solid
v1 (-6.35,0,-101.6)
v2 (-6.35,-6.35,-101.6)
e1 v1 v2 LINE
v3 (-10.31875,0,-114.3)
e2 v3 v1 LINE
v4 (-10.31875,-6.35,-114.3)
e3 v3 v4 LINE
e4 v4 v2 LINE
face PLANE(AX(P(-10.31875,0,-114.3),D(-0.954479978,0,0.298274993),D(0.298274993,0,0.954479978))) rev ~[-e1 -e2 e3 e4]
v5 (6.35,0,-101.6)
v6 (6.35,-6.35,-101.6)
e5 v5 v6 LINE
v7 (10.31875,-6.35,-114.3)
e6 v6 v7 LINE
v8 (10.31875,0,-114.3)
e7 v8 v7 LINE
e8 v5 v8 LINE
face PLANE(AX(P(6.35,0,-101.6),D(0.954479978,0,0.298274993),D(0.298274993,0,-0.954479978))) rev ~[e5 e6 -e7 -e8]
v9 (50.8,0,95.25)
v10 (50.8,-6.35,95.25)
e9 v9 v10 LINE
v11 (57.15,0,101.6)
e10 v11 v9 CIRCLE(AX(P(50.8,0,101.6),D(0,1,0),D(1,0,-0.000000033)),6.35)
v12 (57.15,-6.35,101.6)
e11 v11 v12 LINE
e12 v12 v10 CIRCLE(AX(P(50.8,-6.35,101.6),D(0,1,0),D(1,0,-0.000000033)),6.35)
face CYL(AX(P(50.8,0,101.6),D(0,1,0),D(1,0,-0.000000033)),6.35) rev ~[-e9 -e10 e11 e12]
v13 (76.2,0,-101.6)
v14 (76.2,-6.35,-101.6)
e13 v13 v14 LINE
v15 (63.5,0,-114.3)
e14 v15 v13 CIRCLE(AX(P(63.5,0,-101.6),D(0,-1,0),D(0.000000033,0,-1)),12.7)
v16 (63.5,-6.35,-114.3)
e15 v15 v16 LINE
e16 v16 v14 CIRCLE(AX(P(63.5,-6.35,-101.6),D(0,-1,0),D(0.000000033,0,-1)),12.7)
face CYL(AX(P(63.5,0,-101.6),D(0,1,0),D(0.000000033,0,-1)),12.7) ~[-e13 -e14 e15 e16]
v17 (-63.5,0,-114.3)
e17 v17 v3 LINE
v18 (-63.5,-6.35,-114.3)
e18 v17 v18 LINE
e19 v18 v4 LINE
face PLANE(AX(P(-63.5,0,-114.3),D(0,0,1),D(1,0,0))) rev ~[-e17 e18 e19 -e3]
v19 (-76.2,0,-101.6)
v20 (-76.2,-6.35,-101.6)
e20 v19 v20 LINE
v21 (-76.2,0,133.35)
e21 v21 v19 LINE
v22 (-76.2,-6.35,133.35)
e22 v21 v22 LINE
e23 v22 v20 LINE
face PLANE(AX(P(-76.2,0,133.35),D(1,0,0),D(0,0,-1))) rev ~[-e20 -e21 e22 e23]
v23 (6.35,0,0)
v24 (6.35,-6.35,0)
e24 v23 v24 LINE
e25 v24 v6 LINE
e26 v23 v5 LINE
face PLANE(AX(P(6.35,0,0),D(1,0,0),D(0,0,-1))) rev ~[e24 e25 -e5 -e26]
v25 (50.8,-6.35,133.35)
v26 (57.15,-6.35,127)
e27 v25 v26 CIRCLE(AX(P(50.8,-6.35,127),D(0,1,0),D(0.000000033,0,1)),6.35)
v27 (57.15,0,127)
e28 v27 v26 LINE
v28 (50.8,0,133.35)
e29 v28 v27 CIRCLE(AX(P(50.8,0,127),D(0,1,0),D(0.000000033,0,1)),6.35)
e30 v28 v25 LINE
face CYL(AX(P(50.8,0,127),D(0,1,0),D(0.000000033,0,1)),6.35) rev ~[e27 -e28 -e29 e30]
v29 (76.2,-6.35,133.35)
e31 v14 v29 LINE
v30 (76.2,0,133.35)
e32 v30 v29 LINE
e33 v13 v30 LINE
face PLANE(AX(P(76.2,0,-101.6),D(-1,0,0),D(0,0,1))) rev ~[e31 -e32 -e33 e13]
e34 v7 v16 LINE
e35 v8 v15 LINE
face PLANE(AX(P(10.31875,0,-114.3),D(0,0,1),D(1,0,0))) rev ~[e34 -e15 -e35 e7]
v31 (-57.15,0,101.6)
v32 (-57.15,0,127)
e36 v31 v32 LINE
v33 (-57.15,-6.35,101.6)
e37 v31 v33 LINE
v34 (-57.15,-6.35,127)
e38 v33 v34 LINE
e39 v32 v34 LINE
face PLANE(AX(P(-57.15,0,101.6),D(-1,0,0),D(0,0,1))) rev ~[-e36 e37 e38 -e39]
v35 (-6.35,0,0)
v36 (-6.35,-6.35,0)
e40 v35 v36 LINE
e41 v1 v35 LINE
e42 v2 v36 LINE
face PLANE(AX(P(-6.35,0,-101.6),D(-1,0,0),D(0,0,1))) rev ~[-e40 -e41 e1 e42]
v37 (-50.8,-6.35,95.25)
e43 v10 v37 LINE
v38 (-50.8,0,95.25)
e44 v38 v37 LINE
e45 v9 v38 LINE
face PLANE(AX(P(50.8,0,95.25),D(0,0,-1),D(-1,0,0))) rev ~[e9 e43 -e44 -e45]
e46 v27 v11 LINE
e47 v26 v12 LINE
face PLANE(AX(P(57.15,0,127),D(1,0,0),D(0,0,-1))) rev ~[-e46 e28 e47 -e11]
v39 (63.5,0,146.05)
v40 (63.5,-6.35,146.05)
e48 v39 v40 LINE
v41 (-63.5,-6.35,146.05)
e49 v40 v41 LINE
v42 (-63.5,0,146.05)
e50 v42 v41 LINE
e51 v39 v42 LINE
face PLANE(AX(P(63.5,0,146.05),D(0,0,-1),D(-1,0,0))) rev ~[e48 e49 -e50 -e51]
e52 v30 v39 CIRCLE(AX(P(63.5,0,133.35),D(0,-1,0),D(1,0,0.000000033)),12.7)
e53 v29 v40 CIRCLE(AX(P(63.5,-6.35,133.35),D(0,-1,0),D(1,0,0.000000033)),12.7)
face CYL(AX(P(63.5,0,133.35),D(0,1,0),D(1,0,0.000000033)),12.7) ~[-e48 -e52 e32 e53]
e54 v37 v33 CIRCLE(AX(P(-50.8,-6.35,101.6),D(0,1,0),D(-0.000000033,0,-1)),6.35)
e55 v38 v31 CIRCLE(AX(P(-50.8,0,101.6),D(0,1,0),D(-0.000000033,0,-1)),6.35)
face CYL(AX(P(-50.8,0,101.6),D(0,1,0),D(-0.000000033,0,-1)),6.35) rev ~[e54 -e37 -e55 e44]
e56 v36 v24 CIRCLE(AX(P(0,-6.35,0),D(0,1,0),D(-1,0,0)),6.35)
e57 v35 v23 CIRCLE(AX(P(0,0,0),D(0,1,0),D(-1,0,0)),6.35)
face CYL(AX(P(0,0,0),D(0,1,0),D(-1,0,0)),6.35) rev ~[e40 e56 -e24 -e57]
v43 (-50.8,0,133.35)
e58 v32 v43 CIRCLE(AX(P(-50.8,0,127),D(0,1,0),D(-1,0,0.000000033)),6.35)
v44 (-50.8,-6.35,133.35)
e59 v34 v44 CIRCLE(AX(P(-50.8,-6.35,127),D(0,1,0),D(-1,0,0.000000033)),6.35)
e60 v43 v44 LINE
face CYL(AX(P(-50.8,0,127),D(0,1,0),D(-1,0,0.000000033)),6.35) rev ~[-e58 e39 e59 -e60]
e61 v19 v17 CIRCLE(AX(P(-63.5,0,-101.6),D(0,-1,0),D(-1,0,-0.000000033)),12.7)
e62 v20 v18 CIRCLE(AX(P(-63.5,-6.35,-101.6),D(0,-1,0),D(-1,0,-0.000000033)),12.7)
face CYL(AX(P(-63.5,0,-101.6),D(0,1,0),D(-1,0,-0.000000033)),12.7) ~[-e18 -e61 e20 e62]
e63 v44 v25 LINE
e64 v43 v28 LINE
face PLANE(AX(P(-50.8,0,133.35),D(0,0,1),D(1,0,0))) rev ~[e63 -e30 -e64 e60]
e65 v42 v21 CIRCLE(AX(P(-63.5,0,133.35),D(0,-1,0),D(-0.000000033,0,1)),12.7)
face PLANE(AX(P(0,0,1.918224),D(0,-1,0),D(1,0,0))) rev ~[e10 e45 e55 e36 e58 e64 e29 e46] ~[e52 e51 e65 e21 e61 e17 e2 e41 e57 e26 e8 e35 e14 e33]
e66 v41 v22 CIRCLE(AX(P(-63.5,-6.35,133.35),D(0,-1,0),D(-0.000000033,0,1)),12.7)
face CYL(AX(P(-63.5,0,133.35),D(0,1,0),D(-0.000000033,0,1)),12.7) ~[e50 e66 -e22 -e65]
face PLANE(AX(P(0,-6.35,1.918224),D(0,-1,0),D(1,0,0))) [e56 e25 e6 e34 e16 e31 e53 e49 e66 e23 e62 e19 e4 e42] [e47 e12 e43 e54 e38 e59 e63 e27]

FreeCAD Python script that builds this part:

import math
import FreeCAD as App
import Part
import Sketcher
Q = App.Units.Quantity

doc = App.newDocument("Part")
params = doc.addObject("Spreadsheet::Sheet", "Params")
for row, (alias, value) in enumerate([
    ("sketch1_radius", "0.5 in"),
    ("sketch1_width", "5 in"),
    ("sketch1_width2", "4 in"),
    ("sketch1_height", "1 in"),
    ("sketch1_radius2", "0.25 in"),
    ("pad1_length", "0.25 in"),
], start=1):
    params.set(f"A{row}", alias)
    params.set(f"B{row}", "=" + value)
    params.setAlias(f"B{row}", alias)

body = doc.addObject("PartDesign::Body", "Body")

# Sketch on XZ plane
sketch1 = body.newObject("Sketcher::SketchObject", "Sketch")
sketch1.AttachmentSupport = (doc.getObject("XZ_Plane"), [""])
sketch1.MapMode = "FlatFace"
sketch1.addGeometry([
    Part.ArcOfCircle(Part.Circle(App.Vector(0, 0, 0), App.Vector(0, 0, 1), 6), math.radians(0), math.radians(180)),  # 0
    Part.LineSegment(App.Vector(6, 0, 0), App.Vector(6, -102, 0)),  # 1
    Part.LineSegment(App.Vector(6, -102, 0), App.Vector(10, -114, 0)),  # 2
    Part.LineSegment(App.Vector(10, -114, 0), App.Vector(64, -114, 0)),  # 3
    Part.ArcOfCircle(Part.Circle(App.Vector(63, -102, 0), App.Vector(0, 0, 1), 13), math.radians(-90), math.radians(0)),  # 4
    Part.LineSegment(App.Vector(76, -102, 0), App.Vector(76, 133, 0)),  # 5
    Part.ArcOfCircle(Part.Circle(App.Vector(63, 133, 0), App.Vector(0, 0, 1), 13), math.radians(0), math.radians(90)),  # 6
    Part.LineSegment(App.Vector(64, 146, 0), App.Vector(-64, 146, 0)),  # 7
    Part.ArcOfCircle(Part.Circle(App.Vector(-63, 133, 0), App.Vector(0, 0, 1), 13), math.radians(90), math.radians(180)),  # 8
    Part.LineSegment(App.Vector(-76, 133, 0), App.Vector(-76, -102, 0)),  # 9
    Part.ArcOfCircle(Part.Circle(App.Vector(-63, -102, 0), App.Vector(0, 0, 1), 13), math.radians(-180), math.radians(-90)),  # 10
    Part.LineSegment(App.Vector(-64, -114, 0), App.Vector(-10, -114, 0)),  # 11
    Part.LineSegment(App.Vector(-10, -114, 0), App.Vector(-6, -102, 0)),  # 12
    Part.LineSegment(App.Vector(-6, -102, 0), App.Vector(-6, 0, 0)),  # 13
    Part.LineSegment(App.Vector(-57, 102, 0), App.Vector(-57, 127, 0)),  # 14
    Part.ArcOfCircle(Part.Circle(App.Vector(-51, 127, 0), App.Vector(0, 0, 1), 6), math.radians(90), math.radians(180)),  # 15
    Part.LineSegment(App.Vector(-51, 133, 0), App.Vector(51, 133, 0)),  # 16
    Part.ArcOfCircle(Part.Circle(App.Vector(51, 127, 0), App.Vector(0, 0, 1), 6), math.radians(0), math.radians(90)),  # 17
    Part.LineSegment(App.Vector(57, 127, 0), App.Vector(57, 102, 0)),  # 18
    Part.ArcOfCircle(Part.Circle(App.Vector(51, 102, 0), App.Vector(0, 0, 1), 6), math.radians(-90), math.radians(0)),  # 19
    Part.LineSegment(App.Vector(51, 95, 0), App.Vector(-51, 95, 0)),  # 20
    Part.ArcOfCircle(Part.Circle(App.Vector(-51, 102, 0), App.Vector(0, 0, 1), 6), math.radians(-180), math.radians(-90)),  # 21
], False)
sketch1.addConstraint([
    Sketcher.Constraint("Tangent", 0, 1, 1, 1),
    Sketcher.Constraint("Coincident", 1, 2, 2, 1),
    Sketcher.Constraint("Coincident", 2, 2, 3, 1),
    Sketcher.Constraint("Tangent", 3, 2, 4, 1),
    Sketcher.Constraint("Tangent", 4, 2, 5, 1),
    Sketcher.Constraint("Tangent", 5, 2, 6, 1),
    Sketcher.Constraint("Tangent", 6, 2, 7, 1),
    Sketcher.Constraint("Tangent", 7, 2, 8, 1),
    Sketcher.Constraint("Tangent", 8, 2, 9, 1),
    Sketcher.Constraint("Tangent", 9, 2, 10, 1),
    Sketcher.Constraint("Tangent", 10, 2, 11, 1),
    Sketcher.Constraint("Coincident", 11, 2, 12, 1),
    Sketcher.Constraint("Coincident", 12, 2, 13, 1),
    Sketcher.Constraint("Tangent", 13, 2, 0, 2),
    Sketcher.Constraint("Tangent", 14, 2, 15, 2),
    Sketcher.Constraint("Tangent", 15, 1, 16, 1),
    Sketcher.Constraint("Tangent", 16, 2, 17, 2),
    Sketcher.Constraint("Tangent", 17, 1, 18, 1),
    Sketcher.Constraint("Tangent", 18, 2, 19, 2),
    Sketcher.Constraint("Tangent", 19, 1, 20, 1),
    Sketcher.Constraint("Tangent", 20, 2, 21, 2),
    Sketcher.Constraint("Tangent", 21, 1, 14, 1),
    Sketcher.Constraint("Vertical", 1),
    Sketcher.Constraint("Horizontal", 3),
    Sketcher.Constraint("Vertical", 5),
    Sketcher.Constraint("Horizontal", 7),
    Sketcher.Constraint("Vertical", 9),
    Sketcher.Constraint("Horizontal", 11),
    Sketcher.Constraint("Vertical", 13),
    Sketcher.Constraint("Vertical", 14),
    Sketcher.Constraint("Horizontal", 16),
    Sketcher.Constraint("Vertical", 18),
    Sketcher.Constraint("Horizontal", 20),
    Sketcher.Constraint("Coincident", 0, 3, -1, 1),
    Sketcher.Constraint("Equal", 4, 6),
    Sketcher.Constraint("Equal", 6, 8),
    Sketcher.Constraint("Equal", 8, 10),
    Sketcher.Constraint("Equal", 0, 15),
    Sketcher.Constraint("Equal", 15, 17),
    Sketcher.Constraint("Equal", 17, 19),
    Sketcher.Constraint("Equal", 19, 21),
    Sketcher.Constraint("Symmetric", 4, 3, 10, 3, -2),
    Sketcher.Constraint("Horizontal", 10, 3, 1, 2),
    Sketcher.Constraint("Horizontal", 9, 2, 12, 2),
    Sketcher.Constraint("Horizontal", 8, 2, 15, 1),
    Sketcher.Constraint("Equal", 3, 11),
    Sketcher.Constraint("Equal", 20, 1),
    Sketcher.Constraint("Radius", 4, Q("0.5 in")),
    Sketcher.Constraint("DistanceX", 7, 2, 7, 1, Q("5 in")),
    Sketcher.Constraint("DistanceX", 16, 1, 16, 2, Q("4 in")),
    Sketcher.Constraint("DistanceY", 14, 1, 14, 2, Q("1 in")),
    Sketcher.Constraint("Radius", 0, Q("0.25 in")),
    Sketcher.Constraint("DistanceX", 15, 3, -1, 1, Q("2 in")),
    Sketcher.Constraint("DistanceY", -1, 1, 15, 3, Q("5 in")),
    Sketcher.Constraint("DistanceX", 3, 1, 3, 2, Q("2.09375 in")),
])
sketch1.setExpression("Constraints[47]", "Params.sketch1_radius")
sketch1.setExpression("Constraints[48]", "Params.sketch1_width")
sketch1.setExpression("Constraints[49]", "Params.sketch1_width2")
sketch1.setExpression("Constraints[50]", "Params.sketch1_height")
sketch1.setExpression("Constraints[51]", "Params.sketch1_radius2")
pad1 = body.newObject("PartDesign::Pad", "Pad")
pad1.Profile = sketch1
pad1.setExpression("Length", "Params.pad1_length")

doc.recompute()
